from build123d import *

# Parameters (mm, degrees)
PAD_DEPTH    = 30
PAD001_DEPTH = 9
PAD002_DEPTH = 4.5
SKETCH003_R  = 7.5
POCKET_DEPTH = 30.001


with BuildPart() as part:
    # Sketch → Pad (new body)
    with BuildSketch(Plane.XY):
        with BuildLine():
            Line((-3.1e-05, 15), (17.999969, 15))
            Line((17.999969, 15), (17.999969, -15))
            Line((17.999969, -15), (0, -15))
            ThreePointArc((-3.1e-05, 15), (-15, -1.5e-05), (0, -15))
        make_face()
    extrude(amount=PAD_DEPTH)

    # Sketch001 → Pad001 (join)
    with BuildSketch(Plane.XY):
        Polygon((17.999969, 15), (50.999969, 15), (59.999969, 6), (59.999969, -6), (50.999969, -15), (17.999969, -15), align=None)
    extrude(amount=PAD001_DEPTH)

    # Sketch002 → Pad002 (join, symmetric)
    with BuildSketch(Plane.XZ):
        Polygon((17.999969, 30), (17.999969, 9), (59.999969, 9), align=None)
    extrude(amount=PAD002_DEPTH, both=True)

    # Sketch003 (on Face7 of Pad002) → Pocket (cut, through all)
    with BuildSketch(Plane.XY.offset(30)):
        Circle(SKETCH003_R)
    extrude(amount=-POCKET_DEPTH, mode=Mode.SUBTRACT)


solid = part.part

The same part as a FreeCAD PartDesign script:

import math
import FreeCAD as App
import Part
import Sketcher
from FreeCAD import Vector
Q = App.Units.Quantity

doc = App.newDocument("Part")
body = doc.addObject("PartDesign::Body", "Body")

# Sketch on XY plane
sketch1 = body.newObject("Sketcher::SketchObject", "Sketch")
sketch1.AttachmentSupport = (doc.getObject("XY_Plane"), [""])
sketch1.MapMode = "FlatFace"
sketch1.addGeometry([
    Part.LineSegment(Vector(18, 15, 0), Vector(0, 15, 0)),
    Part.ArcOfCircle(Part.Circle(Vector(0, 0, 0), Vector(0, 0, 1), 15), math.radians(90), math.radians(270)),
    Part.LineSegment(Vector(0, -15, 0), Vector(18, -15, 0)),
    Part.LineSegment(Vector(18, -15, 0), Vector(18, 15, 0)),
], False)
sketch1.addConstraint([
    Sketcher.Constraint("Coincident", 0, 2, 1, 1),
    Sketcher.Constraint("Tangent", 1, 2, 2, 1),
    Sketcher.Constraint("Coincident", 2, 2, 3, 1),
    Sketcher.Constraint("Coincident", 3, 2, 0, 1),
    Sketcher.Constraint("Horizontal", 0),
    Sketcher.Constraint("Horizontal", 2),
    Sketcher.Constraint("Vertical", 3),
    Sketcher.Constraint("Coincident", 1, 3, -1, 1),
    Sketcher.Constraint("Radius", 1, Q("15 mm")),
    Sketcher.Constraint("DistanceX", 0, 2, 0, 1, Q("18 mm")),
    Sketcher.Constraint("DistanceX", 2, 1, 2, 2, Q("17.999969 mm")),
])
pad1 = body.newObject("PartDesign::Pad", "Pad")
pad1.Profile = sketch1
pad1.Length = 30

# Sketch on XY plane
sketch2 = body.newObject("Sketcher::SketchObject", "Sketch001")
sketch2.AttachmentSupport = (doc.getObject("XY_Plane"), [""])
sketch2.MapMode = "FlatFace"
sketch2.addGeometry([
    Part.LineSegment(Vector(50.999969, 15, 0), Vector(17.999969, 15, 0)),  # 0
    Part.LineSegment(Vector(17.999969, 15, 0), Vector(17.999969, -15, 0)),  # 1
    Part.LineSegment(Vector(17.999969, -15, 0), Vector(50.999969, -15, 0)),  # 2
    Part.LineSegment(Vector(50.999969, -15, 0), Vector(59.999969, -6, 0)),  # 3
    Part.LineSegment(Vector(59.999969, -6, 0), Vector(59.999969, 6, 0)),  # 4
    Part.LineSegment(Vector(59.999969, 6, 0), Vector(50.999969, 15, 0)),  # 5
], False)
sketch2.addConstraint([
    Sketcher.Constraint("Coincident", 0, 2, 1, 1),
    Sketcher.Constraint("Coincident", 1, 2, 2, 1),
    Sketcher.Constraint("Coincident", 2, 2, 3, 1),
    Sketcher.Constraint("Coincident", 3, 2, 4, 1),
    Sketcher.Constraint("Coincident", 4, 2, 5, 1),
    Sketcher.Constraint("Coincident", 5, 2, 0, 1),
    Sketcher.Constraint("Horizontal", 0),
    Sketcher.Constraint("Vertical", 1),
    Sketcher.Constraint("Horizontal", 2),
    Sketcher.Constraint("Vertical", 4),
    Sketcher.Constraint("Symmetric", 2, 2, 5, 2, -1),
    Sketcher.Constraint("Perpendicular", 3, 5),
    Sketcher.Constraint("Equal", 3, 5),
    Sketcher.Constraint("DistanceX", 0, 2, 0, 1, Q("33 mm")),
    Sketcher.Constraint("DistanceY", 1, 2, 1, 1, Q("30 mm")),
    Sketcher.Constraint("DistanceY", 4, 1, 4, 2, Q("12 mm")),
    Sketcher.Constraint("DistanceX", -1, 1, 0, 2, Q("17.999969 mm")),
])
pad2 = body.newObject("PartDesign::Pad", "Pad001")
pad2.Profile = sketch2
pad2.Length = 9

# Sketch on XZ plane
sketch3 = body.newObject("Sketcher::SketchObject", "Sketch002")
sketch3.AttachmentSupport = (doc.getObject("XZ_Plane"), [""])
sketch3.MapMode = "FlatFace"
sketch3.addGeometry([
    Part.LineSegment(Vector(17.999969, 30, 0), Vector(17.999969, 9, 0)),
    Part.LineSegment(Vector(17.999969, 9, 0), Vector(59.999969, 9, 0)),
    Part.LineSegment(Vector(59.999969, 9, 0), Vector(17.999969, 30, 0)),
], False)
sketch3.addConstraint([
    Sketcher.Constraint("Coincident", 0, 2, 1, 1),
    Sketcher.Constraint("Coincident", 1, 2, 2, 1),
    Sketcher.Constraint("Coincident", 2, 2, 0, 1),
    Sketcher.Constraint("Vertical", 0),
    Sketcher.Constraint("Horizontal", 1),
    Sketcher.Constraint("DistanceX", 1, 1, 1, 2, Q("42 mm")),
    Sketcher.Constraint("DistanceY", 0, 2, 0, 1, Q("21 mm")),
    Sketcher.Constraint("DistanceY", -1, 1, 0, 2, Q("9 mm")),
    Sketcher.Constraint("DistanceX", -1, 1, 0, 2, Q("17.999969 mm")),
])
pad3 = body.newObject("PartDesign::Pad", "Pad002")
pad3.Profile = sketch3
pad3.Length = 9
pad3.Midplane = True

# Sketch on XY plane
sketch4 = body.newObject("Sketcher::SketchObject", "Sketch003")
sketch4.AttachmentSupport = (doc.getObject("XY_Plane"), [""])
sketch4.MapMode = "FlatFace"
sketch4.AttachmentOffset = App.Placement(Vector(0, 0, 30), App.Rotation())
sketch4.addGeometry(Part.Circle(Vector(0, 0, 0), Vector(0, 0, 1), 8), False)
sketch4.addConstraint([
    Sketcher.Constraint("Coincident", 0, 3, -1, 1),
    Sketcher.Constraint("Diameter", 0, Q("15 mm")),
])
pocket1 = body.newObject("PartDesign::Pocket", "Pocket")
pocket1.Profile = sketch4
pocket1.Type = "ThroughAll"

doc.recompute()
